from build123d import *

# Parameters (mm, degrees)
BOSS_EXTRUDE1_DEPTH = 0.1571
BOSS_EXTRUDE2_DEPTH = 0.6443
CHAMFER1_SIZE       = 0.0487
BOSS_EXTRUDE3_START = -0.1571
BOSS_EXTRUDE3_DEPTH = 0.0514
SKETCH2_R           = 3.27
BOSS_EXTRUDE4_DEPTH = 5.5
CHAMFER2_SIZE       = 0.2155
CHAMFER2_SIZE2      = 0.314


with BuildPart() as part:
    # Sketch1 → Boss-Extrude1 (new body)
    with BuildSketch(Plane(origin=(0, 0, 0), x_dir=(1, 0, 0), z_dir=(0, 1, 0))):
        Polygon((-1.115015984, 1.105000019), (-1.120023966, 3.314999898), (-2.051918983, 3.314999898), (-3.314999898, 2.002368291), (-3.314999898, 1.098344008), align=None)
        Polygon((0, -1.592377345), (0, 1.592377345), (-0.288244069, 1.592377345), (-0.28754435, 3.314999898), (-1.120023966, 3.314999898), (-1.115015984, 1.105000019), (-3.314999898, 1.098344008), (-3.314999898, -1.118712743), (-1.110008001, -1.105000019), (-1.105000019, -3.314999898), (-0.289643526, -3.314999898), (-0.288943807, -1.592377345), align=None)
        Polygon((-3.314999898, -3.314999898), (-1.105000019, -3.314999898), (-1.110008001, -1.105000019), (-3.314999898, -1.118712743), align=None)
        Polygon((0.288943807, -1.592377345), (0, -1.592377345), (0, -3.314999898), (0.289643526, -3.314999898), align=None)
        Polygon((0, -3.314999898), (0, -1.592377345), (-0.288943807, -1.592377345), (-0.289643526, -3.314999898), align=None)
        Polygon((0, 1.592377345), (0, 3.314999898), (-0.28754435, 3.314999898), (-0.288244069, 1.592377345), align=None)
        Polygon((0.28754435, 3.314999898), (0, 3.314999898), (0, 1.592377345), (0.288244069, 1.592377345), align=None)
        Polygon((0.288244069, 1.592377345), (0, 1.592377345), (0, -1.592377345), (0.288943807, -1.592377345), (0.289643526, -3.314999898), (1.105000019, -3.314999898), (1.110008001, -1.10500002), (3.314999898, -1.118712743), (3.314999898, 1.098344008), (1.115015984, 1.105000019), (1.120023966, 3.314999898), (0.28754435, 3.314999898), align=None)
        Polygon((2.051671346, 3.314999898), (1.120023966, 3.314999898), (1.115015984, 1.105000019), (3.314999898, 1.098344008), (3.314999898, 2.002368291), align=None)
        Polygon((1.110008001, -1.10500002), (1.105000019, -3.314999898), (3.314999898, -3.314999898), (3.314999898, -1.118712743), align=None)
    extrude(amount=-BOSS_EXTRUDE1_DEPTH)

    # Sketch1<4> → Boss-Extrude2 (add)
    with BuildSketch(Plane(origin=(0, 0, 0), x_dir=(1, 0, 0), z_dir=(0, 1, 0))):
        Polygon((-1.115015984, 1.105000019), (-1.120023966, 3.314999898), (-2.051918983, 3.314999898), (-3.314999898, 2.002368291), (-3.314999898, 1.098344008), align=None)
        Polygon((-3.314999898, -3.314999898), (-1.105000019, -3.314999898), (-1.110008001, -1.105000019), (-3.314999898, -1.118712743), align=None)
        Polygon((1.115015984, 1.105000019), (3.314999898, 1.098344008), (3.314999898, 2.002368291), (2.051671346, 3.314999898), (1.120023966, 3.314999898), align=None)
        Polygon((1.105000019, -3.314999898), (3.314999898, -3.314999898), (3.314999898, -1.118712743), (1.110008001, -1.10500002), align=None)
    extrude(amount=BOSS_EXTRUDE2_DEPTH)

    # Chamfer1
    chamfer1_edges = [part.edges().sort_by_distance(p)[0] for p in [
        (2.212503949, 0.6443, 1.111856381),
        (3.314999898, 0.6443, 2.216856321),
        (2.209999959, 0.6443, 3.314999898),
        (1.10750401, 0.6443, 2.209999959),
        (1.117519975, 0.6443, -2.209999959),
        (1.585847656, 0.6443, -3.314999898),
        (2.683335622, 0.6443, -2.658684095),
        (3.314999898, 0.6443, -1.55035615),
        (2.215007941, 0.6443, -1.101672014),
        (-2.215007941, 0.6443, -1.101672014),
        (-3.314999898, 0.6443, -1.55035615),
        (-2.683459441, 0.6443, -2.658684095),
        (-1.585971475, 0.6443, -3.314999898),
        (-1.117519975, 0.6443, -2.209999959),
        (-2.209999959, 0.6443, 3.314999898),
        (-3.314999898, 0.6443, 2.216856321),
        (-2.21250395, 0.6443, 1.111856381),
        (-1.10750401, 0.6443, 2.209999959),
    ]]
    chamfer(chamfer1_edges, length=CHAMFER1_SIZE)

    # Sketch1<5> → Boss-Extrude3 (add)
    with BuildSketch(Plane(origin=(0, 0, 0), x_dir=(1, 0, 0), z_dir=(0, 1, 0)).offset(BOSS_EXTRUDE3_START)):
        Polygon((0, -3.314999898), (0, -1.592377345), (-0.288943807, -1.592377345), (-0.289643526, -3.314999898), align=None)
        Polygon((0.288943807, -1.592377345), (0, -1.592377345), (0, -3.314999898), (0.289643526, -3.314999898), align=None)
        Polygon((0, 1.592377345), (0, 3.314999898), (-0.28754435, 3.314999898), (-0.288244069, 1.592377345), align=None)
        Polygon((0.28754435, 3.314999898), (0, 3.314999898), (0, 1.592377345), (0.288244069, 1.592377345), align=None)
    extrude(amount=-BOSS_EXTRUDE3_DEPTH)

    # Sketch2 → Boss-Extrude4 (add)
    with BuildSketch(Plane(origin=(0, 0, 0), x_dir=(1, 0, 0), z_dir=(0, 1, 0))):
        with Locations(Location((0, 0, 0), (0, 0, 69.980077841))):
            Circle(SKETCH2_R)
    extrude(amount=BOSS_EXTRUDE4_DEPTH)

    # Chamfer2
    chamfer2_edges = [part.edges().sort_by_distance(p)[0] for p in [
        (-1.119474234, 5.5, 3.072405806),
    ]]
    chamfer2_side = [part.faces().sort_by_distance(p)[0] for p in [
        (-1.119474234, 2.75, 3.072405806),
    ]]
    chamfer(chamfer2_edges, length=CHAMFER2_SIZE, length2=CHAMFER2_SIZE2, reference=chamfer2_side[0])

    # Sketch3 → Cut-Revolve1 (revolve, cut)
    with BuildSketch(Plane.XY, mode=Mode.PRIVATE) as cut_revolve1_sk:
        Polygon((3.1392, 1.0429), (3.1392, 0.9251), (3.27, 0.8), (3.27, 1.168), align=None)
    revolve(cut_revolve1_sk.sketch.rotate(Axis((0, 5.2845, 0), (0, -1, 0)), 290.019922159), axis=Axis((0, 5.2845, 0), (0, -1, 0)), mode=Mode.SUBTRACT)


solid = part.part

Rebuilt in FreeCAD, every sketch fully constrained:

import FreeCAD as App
import Part
import Sketcher
from FreeCAD import Vector
Q = App.Units.Quantity


def edges_at(feature, points):
    """Names of the edges that pass closest to the given points."""
    edges = feature.Shape.Edges
    near = lambda p: min(range(len(edges)), key=lambda i: edges[i].distToShape(Part.Vertex(*p))[0])
    return sorted({f"Edge{near(p) + 1}" for p in points})

doc = App.newDocument("Part")
params = doc.addObject("Spreadsheet::Sheet", "Params")
for row, (alias, value) in enumerate([
    ("sketch1_width", "6.63 mm"),
    ("pad1_length", "0.1571 mm"),
    ("sketch2_width", "2.21 mm"),
    ("pad2_length", "0.6443 mm"),
    ("chamfer_size", "0.0487 mm"),
    ("pad3_length", "0.0514 mm"),
    ("sketch4_diameter", "6.54 mm"),
    ("pad4_length", "5.5 mm"),
    ("chamfer2_size", "0.2155 mm"),
    ("chamfer2_size2", "0.314 mm"),
    ("groove_angle", "360 deg"),
], start=1):
    params.set(f"A{row}", alias)
    params.set(f"B{row}", "=" + value)
    params.setAlias(f"B{row}", alias)

body = doc.addObject("PartDesign::Body", "Body")

# Sketch on XZ plane
sketch1 = body.newObject("Sketcher::SketchObject", "Sketch")
sketch1.AttachmentSupport = (doc.getObject("XZ_Plane"), [""])
sketch1.MapMode = "FlatFace"
sketch1.addGeometry(Part.LineSegment(Vector(-2.051919, -3.315, 0), Vector(-3.315, -2.002368, 0)), False)
sketch1.addGeometry(Part.LineSegment(Vector(-3.315, -2.002368, 0), Vector(-3.315, 3.315, 0)), False)
sketch1.addGeometry(Part.LineSegment(Vector(-3.315, 3.315, 0), Vector(3.315, 3.315, 0)), False)
sketch1.addGeometry(Part.LineSegment(Vector(3.315, 3.315, 0), Vector(3.315, -2.002368, 0)), False)
sketch1.addGeometry(Part.LineSegment(Vector(3.315, -2.002368, 0), Vector(2.051671, -3.315, 0)), False)
sketch1.addGeometry(Part.LineSegment(Vector(2.051671, -3.315, 0), Vector(-2.051919, -3.315, 0)), False)
sketch1.addConstraint(Sketcher.Constraint("Coincident", 0, 2, 1, 1))
sketch1.addConstraint(Sketcher.Constraint("Coincident", 1, 2, 2, 1))
sketch1.addConstraint(Sketcher.Constraint("Coincident", 2, 2, 3, 1))
sketch1.addConstraint(Sketcher.Constraint("Coincident", 3, 2, 4, 1))
sketch1.addConstraint(Sketcher.Constraint("Coincident", 4, 2, 5, 1))
sketch1.addConstraint(Sketcher.Constraint("Coincident", 5, 2, 0, 1))
sketch1.addConstraint(Sketcher.Constraint("Vertical", 1))
sketch1.addConstraint(Sketcher.Constraint("Horizontal", 2))
sketch1.addConstraint(Sketcher.Constraint("Vertical", 3))
sketch1.addConstraint(Sketcher.Constraint("Horizontal", 5))
sketch1.addConstraint(Sketcher.Constraint("Symmetric", 0, 2, 3, 2, -2))
sketch1.addConstraint(Sketcher.Constraint("DistanceX", 2, 1, 2, 2, Q("6.63 mm")))
sketch1.addConstraint(Sketcher.Constraint("DistanceY", 4, 2, 2, 2, Q("6.63 mm")))
sketch1.addConstraint(Sketcher.Constraint("DistanceY", -1, 1, 1, 2, Q("3.315 mm")))
sketch1.addConstraint(Sketcher.Constraint("DistanceX", 5, 2, 5, 1, Q("4.10359 mm")))
sketch1.addConstraint(Sketcher.Constraint("DistanceY", 1, 1, 1, 2, Q("5.317368 mm")))
sketch1.addConstraint(Sketcher.Constraint("Distance", 0, Q("1.821641 mm")))
sketch1.setExpression("Constraints[11]", "Params.sketch1_width")
pad1 = body.newObject("PartDesign::Pad", "Pad")
pad1.Profile = sketch1
pad1.setExpression("Length", "Params.pad1_length")

# Sketch on XZ plane
sketch2 = body.newObject("Sketcher::SketchObject", "Sketch001")
sketch2.AttachmentSupport = (doc.getObject("XZ_Plane"), [""])
sketch2.MapMode = "FlatFace"
sketch2.addGeometry(Part.LineSegment(Vector(-1.115016, -1.105, 0), Vector(-1.120024, -3.315, 0)), False)
sketch2.addGeometry(Part.LineSegment(Vector(-1.120024, -3.315, 0), Vector(-2.051919, -3.315, 0)), False)
sketch2.addGeometry(Part.LineSegment(Vector(-2.051919, -3.315, 0), Vector(-3.315, -2.002368, 0)), False)
sketch2.addGeometry(Part.LineSegment(Vector(-3.315, -2.002368, 0), Vector(-3.315, -1.098344, 0)), False)
sketch2.addGeometry(Part.LineSegment(Vector(-3.315, -1.098344, 0), Vector(-1.115016, -1.105, 0)), False)
sketch2.addGeometry(Part.LineSegment(Vector(-3.315, 3.315, 0), Vector(-1.105, 3.315, 0)), False)
sketch2.addGeometry(Part.LineSegment(Vector(-1.105, 3.315, 0), Vector(-1.110008, 1.105, 0)), False)
sketch2.addGeometry(Part.LineSegment(Vector(-1.110008, 1.105, 0), Vector(-3.315, 1.118713, 0)), False)
sketch2.addGeometry(Part.LineSegment(Vector(-3.315, 1.118713, 0), Vector(-3.315, 3.315, 0)), False)
sketch2.addGeometry(Part.LineSegment(Vector(1.115016, -1.105, 0), Vector(3.315, -1.098344, 0)), False)
sketch2.addGeometry(Part.LineSegment(Vector(3.315, -1.098344, 0), Vector(3.315, -2.002368, 0)), False)
sketch2.addGeometry(Part.LineSegment(Vector(3.315, -2.002368, 0), Vector(2.051671, -3.315, 0)), False)
sketch2.addGeometry(Part.LineSegment(Vector(2.051671, -3.315, 0), Vector(1.120024, -3.315, 0)), False)
sketch2.addGeometry(Part.LineSegment(Vector(1.120024, -3.315, 0), Vector(1.115016, -1.105, 0)), False)
sketch2.addGeometry(Part.LineSegment(Vector(1.105, 3.315, 0), Vector(3.315, 3.315, 0)), False)
sketch2.addGeometry(Part.LineSegment(Vector(3.315, 3.315, 0), Vector(3.315, 1.118713, 0)), False)
sketch2.addGeometry(Part.LineSegment(Vector(3.315, 1.118713, 0), Vector(1.110008, 1.105, 0)), False)
sketch2.addGeometry(Part.LineSegment(Vector(1.110008, 1.105, 0), Vector(1.105, 3.315, 0)), False)
sketch2.addConstraint(Sketcher.Constraint("Coincident", 0, 2, 1, 1))
sketch2.addConstraint(Sketcher.Constraint("Coincident", 1, 2, 2, 1))
sketch2.addConstraint(Sketcher.Constraint("Coincident", 2, 2, 3, 1))
sketch2.addConstraint(Sketcher.Constraint("Coincident", 3, 2, 4, 1))
sketch2.addConstraint(Sketcher.Constraint("Coincident", 4, 2, 0, 1))
sketch2.addConstraint(Sketcher.Constraint("Coincident", 5, 2, 6, 1))
sketch2.addConstraint(Sketcher.Constraint("Coincident", 6, 2, 7, 1))
sketch2.addConstraint(Sketcher.Constraint("Coincident", 7, 2, 8, 1))
sketch2.addConstraint(Sketcher.Constraint("Coincident", 8, 2, 5, 1))
sketch2.addConstraint(Sketcher.Constraint("Coincident", 9, 2, 10, 1))
sketch2.addConstraint(Sketcher.Constraint("Coincident", 10, 2, 11, 1))
sketch2.addConstraint(Sketcher.Constraint("Coincident", 11, 2, 12, 1))
sketch2.addConstraint(Sketcher.Constraint("Coincident", 12, 2, 13, 1))
sketch2.addConstraint(Sketcher.Constraint("Coincident", 13, 2, 9, 1))
sketch2.addConstraint(Sketcher.Constraint("Coincident", 14, 2, 15, 1))
sketch2.addConstraint(Sketcher.Constraint("Coincident", 15, 2, 16, 1))
sketch2.addConstraint(Sketcher.Constraint("Coincident", 16, 2, 17, 1))
sketch2.addConstraint(Sketcher.Constraint("Coincident", 17, 2, 14, 1))
sketch2.addConstraint(Sketcher.Constraint("Horizontal", 1))
sketch2.addConstraint(Sketcher.Constraint("Vertical", 3))
sketch2.addConstraint(Sketcher.Constraint("Horizontal", 5))
sketch2.addConstraint(Sketcher.Constraint("Vertical", 8))
sketch2.addConstraint(Sketcher.Constraint("Vertical", 10))
sketch2.addConstraint(Sketcher.Constraint("Horizontal", 12))
sketch2.addConstraint(Sketcher.Constraint("Horizontal", 14))
sketch2.addConstraint(Sketcher.Constraint("Vertical", 15))
sketch2.addConstraint(Sketcher.Constraint("Symmetric", 3, 2, 9, 2, -2))
sketch2.addConstraint(Sketcher.Constraint("Symmetric", 0, 2, 12, 2, -2))
sketch2.addConstraint(Sketcher.Constraint("Symmetric", 4, 2, 13, 2, -2))
sketch2.addConstraint(Sketcher.Constraint("Symmetric", 8, 2, 14, 2, -2))
sketch2.addConstraint(Sketcher.Constraint("Symmetric", 6, 2, 16, 2, -2))
sketch2.addConstraint(Sketcher.Constraint("Parallel", 0, 6))
sketch2.addConstraint(Sketcher.Constraint("Parallel", 13, 17))
sketch2.addConstraint(Sketcher.Constraint("Horizontal", 2, 2, 10, 2))
sketch2.addConstraint(Sketcher.Constraint("Horizontal", 7, 2, 15, 2))
sketch2.addConstraint(Sketcher.Constraint("Vertical", 3, 2, 7, 2))
sketch2.addConstraint(Sketcher.Constraint("Equal", 0, 6))
sketch2.addConstraint(Sketcher.Constraint("DistanceX", 5, 1, 5, 2, Q("2.21 mm")))
sketch2.addConstraint(Sketcher.Constraint("DistanceY", 0, 2, 4, 2, Q("2.21 mm")))
sketch2.addConstraint(Sketcher.Constraint("DistanceY", 4, 2, 5, 2, Q("4.42 mm")))
sketch2.addConstraint(Sketcher.Constraint("DistanceX", 5, 2, 9, 2, Q("4.42 mm")))
sketch2.addConstraint(Sketcher.Constraint("DistanceY", 0, 2, -1, 1, Q("3.315 mm")))
sketch2.addConstraint(Sketcher.Constraint("Distance", 2, Q("1.821641 mm")))
sketch2.addConstraint(Sketcher.Constraint("DistanceX", 1, 2, 1, 1, Q("0.931895 mm")))
sketch2.addConstraint(Sketcher.Constraint("DistanceX", 12, 2, 12, 1, Q("0.931647 mm")))
sketch2.addConstraint(Sketcher.Constraint("DistanceY", 3, 1, 3, 2, Q("0.904024 mm")))
sketch2.addConstraint(Sketcher.Constraint("DistanceY", 8, 1, 8, 2, Q("2.196287 mm")))
sketch2.addConstraint(Sketcher.Constraint("DistanceX", 1, 2, -1, 1, Q("2.051919 mm")))
sketch2.addConstraint(Sketcher.Constraint("DistanceX", 6, 2, -1, 1, Q("1.110008 mm")))
sketch2.setExpression("Constraints[37]", "Params.sketch2_width")
pad2 = body.newObject("PartDesign::Pad", "Pad001")
pad2.Profile = sketch2
pad2.setExpression("Length", "Params.pad2_length")
pad2.Reversed = True
doc.recompute()

chamfer = body.newObject("PartDesign::Chamfer", "Chamfer")
chamfer.Base = (pad2, edges_at(pad2, [
    (2.213, 0.644, 1.112),
    (3.315, 0.644, 2.217),
    (2.21, 0.644, 3.315),
    (1.108, 0.644, 2.21),
    (1.118, 0.644, -2.21),
    (1.586, 0.644, -3.315),
    (2.683, 0.644, -2.659),
    (3.315, 0.644, -1.55),
    (2.215, 0.644, -1.102),
    (-2.215, 0.644, -1.102),
    (-3.315, 0.644, -1.55),
    (-2.683, 0.644, -2.659),
    (-1.586, 0.644, -3.315),
    (-1.118, 0.644, -2.21),
    (-2.21, 0.644, 3.315),
    (-3.315, 0.644, 2.217),
    (-2.213, 0.644, 1.112),
    (-1.108, 0.644, 2.21),
]))
chamfer.setExpression("Size", "Params.chamfer_size")

# Sketch on XZ plane
sketch3 = body.newObject("Sketcher::SketchObject", "Sketch002")
sketch3.AttachmentSupport = (doc.getObject("XZ_Plane"), [""])
sketch3.MapMode = "FlatFace"
sketch3.AttachmentOffset = App.Placement(Vector(0, 0, 0.1571), App.Rotation())
sketch3.addGeometry(Part.LineSegment(Vector(-0.288944, 1.592377, 0), Vector(-0.289644, 3.315, 0)), False)
sketch3.addGeometry(Part.LineSegment(Vector(-0.289644, 3.315, 0), Vector(0.289644, 3.315, 0)), False)
sketch3.addGeometry(Part.LineSegment(Vector(0.289644, 3.315, 0), Vector(0.288944, 1.592377, 0)), False)
sketch3.addGeometry(Part.LineSegment(Vector(0.288944, 1.592377, 0), Vector(-0.288944, 1.592377, 0)), False)
sketch3.addGeometry(Part.LineSegment(Vector(-0.287544, -3.315, 0), Vector(-0.288244, -1.592377, 0)), False)
sketch3.addGeometry(Part.LineSegment(Vector(-0.288244, -1.592377, 0), Vector(0.288244, -1.592377, 0)), False)
sketch3.addGeometry(Part.LineSegment(Vector(0.288244, -1.592377, 0), Vector(0.287544, -3.315, 0)), False)
sketch3.addGeometry(Part.LineSegment(Vector(0.287544, -3.315, 0), Vector(-0.287544, -3.315, 0)), False)
sketch3.addConstraint(Sketcher.Constraint("Coincident", 0, 2, 1, 1))
sketch3.addConstraint(Sketcher.Constraint("Coincident", 1, 2, 2, 1))
sketch3.addConstraint(Sketcher.Constraint("Coincident", 2, 2, 3, 1))
sketch3.addConstraint(Sketcher.Constraint("Coincident", 3, 2, 0, 1))
sketch3.addConstraint(Sketcher.Constraint("Coincident", 4, 2, 5, 1))
sketch3.addConstraint(Sketcher.Constraint("Coincident", 5, 2, 6, 1))
sketch3.addConstraint(Sketcher.Constraint("Coincident", 6, 2, 7, 1))
sketch3.addConstraint(Sketcher.Constraint("Coincident", 7, 2, 4, 1))
sketch3.addConstraint(Sketcher.Constraint("Horizontal", 1))
sketch3.addConstraint(Sketcher.Constraint("Horizontal", 3))
sketch3.addConstraint(Sketcher.Constraint("Horizontal", 5))
sketch3.addConstraint(Sketcher.Constraint("Horizontal", 7))
sketch3.addConstraint(Sketcher.Constraint("Parallel", 0, 4))
sketch3.addConstraint(Sketcher.Constraint("Parallel", 2, 6))
sketch3.addConstraint(Sketcher.Constraint("Equal", 2, 4))
sketch3.addConstraint(Sketcher.Constraint("DistanceY", 6, 2, 1, 2, Q("6.63 mm")))
sketch3.addConstraint(Sketcher.Constraint("DistanceY", -1, 1, 0, 2, Q("3.315 mm")))
sketch3.addConstraint(Sketcher.Constraint("DistanceX", 5, 1, 5, 2, Q("0.576488 mm")))
sketch3.addConstraint(Sketcher.Constraint("DistanceX", 7, 2, 7, 1, Q("0.575089 mm")))
sketch3.addConstraint(Sketcher.Constraint("DistanceX", 2, 2, 1, 2, Q("0.0007 mm")))
sketch3.addConstraint(Sketcher.Constraint("DistanceX", 3, 2, 4, 2, Q("0.0007 mm")))
sketch3.addConstraint(Sketcher.Constraint("DistanceX", 5, 2, 2, 2, Q("0.0007 mm")))
sketch3.addConstraint(Sketcher.Constraint("Distance", 0, Q("1.722623 mm")))
sketch3.addConstraint(Sketcher.Constraint("DistanceX", 0, 2, -1, 1, Q("0.289644 mm")))
pad3 = body.newObject("PartDesign::Pad", "Pad002")
pad3.Profile = sketch3
pad3.setExpression("Length", "Params.pad3_length")

# Sketch on XZ plane
sketch4 = body.newObject("Sketcher::SketchObject", "Sketch003")
sketch4.AttachmentSupport = (doc.getObject("XZ_Plane"), [""])
sketch4.MapMode = "FlatFace"
sketch4.addGeometry(Part.Circle(Vector(0, 0, 0), Vector(0, 0, 1), 3.27), False)
sketch4.addConstraint(Sketcher.Constraint("Coincident", 0, 3, -1, 1))
sketch4.addConstraint(Sketcher.Constraint("Diameter", 0, Q("6.54 mm")))
sketch4.setExpression("Constraints[1]", "Params.sketch4_diameter")
pad4 = body.newObject("PartDesign::Pad", "Pad003")
pad4.Profile = sketch4
pad4.setExpression("Length", "Params.pad4_length")
pad4.Reversed = True
doc.recompute()

chamfer2 = body.newObject("PartDesign::Chamfer", "Chamfer001")
chamfer2.Base = (pad4, edges_at(pad4, [(-1.119, 5.5, 3.072)]))
chamfer2.ChamferType = "Two distances"
chamfer2.setExpression("Size", "Params.chamfer2_size")
chamfer2.setExpression("Size2", "Params.chamfer2_size2")

# Sketch on XY plane
sketch5 = body.newObject("Sketcher::SketchObject", "Sketch004")
sketch5.AttachmentSupport = (doc.getObject("XY_Plane"), [""])
sketch5.MapMode = "FlatFace"
sketch5.addGeometry(Part.LineSegment(Vector(3.1392, 1.0429, 0), Vector(3.1392, 0.9251, 0)), False)
sketch5.addGeometry(Part.LineSegment(Vector(3.1392, 0.9251, 0), Vector(3.27, 0.8, 0)), False)
sketch5.addGeometry(Part.LineSegment(Vector(3.27, 0.8, 0), Vector(3.27, 1.168, 0)), False)
sketch5.addGeometry(Part.LineSegment(Vector(3.27, 1.168, 0), Vector(3.1392, 1.0429, 0)), False)
sketch5.addConstraint(Sketcher.Constraint("Coincident", 0, 2, 1, 1))
sketch5.addConstraint(Sketcher.Constraint("Coincident", 1, 2, 2, 1))
sketch5.addConstraint(Sketcher.Constraint("Coincident", 2, 2, 3, 1))
sketch5.addConstraint(Sketcher.Constraint("Coincident", 3, 2, 0, 1))
sketch5.addConstraint(Sketcher.Constraint("Vertical", 0))
sketch5.addConstraint(Sketcher.Constraint("Vertical", 2))
sketch5.addConstraint(Sketcher.Constraint("Equal", 1, 3))
sketch5.addConstraint(Sketcher.Constraint("DistanceY", -1, 1, 1, 2, Q("0.8 mm")))
sketch5.addConstraint(Sketcher.Constraint("DistanceY", 2, 1, 2, 2, Q("0.368 mm")))
sketch5.addConstraint(Sketcher.Constraint("DistanceX", -1, 1, 1, 2, Q("3.27 mm")))
sketch5.addConstraint(Sketcher.Constraint("DistanceY", 0, 2, 0, 1, Q("0.1178 mm")))
sketch5.addConstraint(Sketcher.Constraint("DistanceX", -1, 1, 0, 2, Q("3.1392 mm")))
groove = body.newObject("PartDesign::Groove", "Groove")
groove.Profile = sketch5
groove.ReferenceAxis = (sketch5, ["V_Axis"])
groove.setExpression("Angle", "Params.groove_angle")

doc.recompute()
